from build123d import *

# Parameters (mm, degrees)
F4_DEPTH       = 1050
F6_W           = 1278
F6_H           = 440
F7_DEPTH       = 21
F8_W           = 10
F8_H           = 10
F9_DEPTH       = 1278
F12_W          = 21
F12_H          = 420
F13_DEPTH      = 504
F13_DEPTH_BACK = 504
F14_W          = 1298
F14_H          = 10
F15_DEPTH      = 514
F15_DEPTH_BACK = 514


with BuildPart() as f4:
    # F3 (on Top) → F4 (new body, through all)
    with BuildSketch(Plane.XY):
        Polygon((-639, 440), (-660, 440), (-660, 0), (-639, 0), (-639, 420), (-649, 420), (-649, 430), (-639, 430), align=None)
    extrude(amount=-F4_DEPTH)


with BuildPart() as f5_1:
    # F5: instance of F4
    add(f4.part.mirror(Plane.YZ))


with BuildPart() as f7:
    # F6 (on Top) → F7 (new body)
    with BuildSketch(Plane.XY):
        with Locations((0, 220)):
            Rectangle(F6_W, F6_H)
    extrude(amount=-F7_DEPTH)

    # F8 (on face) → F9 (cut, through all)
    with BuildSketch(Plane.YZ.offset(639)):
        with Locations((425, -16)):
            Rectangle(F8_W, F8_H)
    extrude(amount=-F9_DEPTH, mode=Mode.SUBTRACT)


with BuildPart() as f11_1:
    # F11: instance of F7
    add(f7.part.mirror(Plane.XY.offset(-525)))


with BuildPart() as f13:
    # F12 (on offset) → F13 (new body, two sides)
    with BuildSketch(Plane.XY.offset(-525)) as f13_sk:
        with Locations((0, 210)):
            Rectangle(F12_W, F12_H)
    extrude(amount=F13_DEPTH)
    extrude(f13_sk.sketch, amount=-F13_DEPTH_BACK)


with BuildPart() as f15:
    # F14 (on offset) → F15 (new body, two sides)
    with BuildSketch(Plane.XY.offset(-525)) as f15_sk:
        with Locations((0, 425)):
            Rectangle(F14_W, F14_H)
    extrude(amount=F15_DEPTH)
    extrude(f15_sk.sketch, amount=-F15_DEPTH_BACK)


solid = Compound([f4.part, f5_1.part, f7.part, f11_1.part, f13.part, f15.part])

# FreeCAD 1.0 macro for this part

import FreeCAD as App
import Part
import Sketcher


def add_polygon(sketch, points):
    """Adds a closed chain of lines whose ends are joined by coincident constraints."""
    first, n = sketch.GeometryCount, len(points)
    for a, b in zip(points, points[1:] + points[:1]):
        sketch.addGeometry(Part.LineSegment(App.Vector(*a, 0), App.Vector(*b, 0)), False)
    for i in range(n):
        sketch.addConstraint(Sketcher.Constraint("Coincident", first + i, 2, first + (i + 1) % n, 1))

doc = App.newDocument("Part")
body = doc.addObject("PartDesign::Body", "Body")

# Sketch on XY plane
sketch1 = body.newObject("Sketcher::SketchObject", "Sketch")
sketch1.AttachmentSupport = (doc.getObject("XY_Plane"), [""])
sketch1.MapMode = "FlatFace"
add_polygon(sketch1, [(-639, 440), (-660, 440), (-660, 0), (-639, 0), (-639, 420), (-649, 420), (-649, 430), (-639, 430)])  # lines 0-7
sketch1.addConstraint(Sketcher.Constraint("Horizontal", 0))
sketch1.addConstraint(Sketcher.Constraint("Vertical", 1))
sketch1.addConstraint(Sketcher.Constraint("Horizontal", 2))
sketch1.addConstraint(Sketcher.Constraint("Vertical", 3))
sketch1.addConstraint(Sketcher.Constraint("Horizontal", 4))
sketch1.addConstraint(Sketcher.Constraint("Vertical", 5))
sketch1.addConstraint(Sketcher.Constraint("Horizontal", 6))
sketch1.addConstraint(Sketcher.Constraint("Vertical", 7))
sketch1.addConstraint(Sketcher.Constraint("PointOnObject", 1, 2, -1))
sketch1.addConstraint(Sketcher.Constraint("Vertical", 3, 2, 6, 2))
sketch1.addConstraint(Sketcher.Constraint("Equal", 6, 5))
sketch1.addConstraint(Sketcher.Constraint("Equal", 5, 7))
sketch1.addConstraint(Sketcher.Constraint("DistanceX", 0, 2, 0, 1, 21.0))
sketch1.addConstraint(Sketcher.Constraint("DistanceX", 4, 2, 4, 1, 10.0))
sketch1.addConstraint(Sketcher.Constraint("DistanceY", 1, 2, 1, 1, 440.0))
sketch1.addConstraint(Sketcher.Constraint("DistanceX", 0, 2, -1, 1, 660.0))
pad1 = body.newObject("PartDesign::Pad", "Pad")
pad1.Profile = sketch1
pad1.Length = 1050
pad1.Reversed = True
body2 = doc.addObject("PartDesign::Body", "Body001")
doc.recompute()

mirroring = doc.addObject("Part::Mirroring", "Mirroring")
mirroring.Source = body
mirroring.Base = App.Vector(0, 0, 0)
mirroring.Normal = App.Vector(1, 0, 0)
body2.BaseFeature = mirroring
doc.recompute()
body3 = doc.addObject("PartDesign::Body", "Body002")

# Sketch on XY plane
sketch2 = body3.newObject("Sketcher::SketchObject", "Sketch001")
sketch2.AttachmentSupport = (doc.getObject("XY_Plane002"), [""])
sketch2.MapMode = "FlatFace"
add_polygon(sketch2, [(-639, 440), (-639, 0), (639, 0), (639, 440)])  # lines 0-3
sketch2.addConstraint(Sketcher.Constraint("Vertical", 0))
sketch2.addConstraint(Sketcher.Constraint("Horizontal", 1))
sketch2.addConstraint(Sketcher.Constraint("Vertical", 2))
sketch2.addConstraint(Sketcher.Constraint("Horizontal", 3))
sketch2.addConstraint(Sketcher.Constraint("Symmetric", 0, 2, 1, 2, -1, 1))
sketch2.addConstraint(Sketcher.Constraint("DistanceX", 1, 1, 1, 2, 1278.0))
sketch2.addConstraint(Sketcher.Constraint("DistanceY", 0, 2, 0, 1, 440.0))
pad2 = body3.newObject("PartDesign::Pad", "Pad001")
pad2.Profile = sketch2
pad2.Length = 21
pad2.Reversed = True

# Sketch on YZ plane
sketch3 = body3.newObject("Sketcher::SketchObject", "Sketch002")
sketch3.AttachmentSupport = (doc.getObject("YZ_Plane002"), [""])
sketch3.MapMode = "FlatFace"
sketch3.AttachmentOffset = App.Placement(App.Vector(0, 0, 639), App.Rotation())
add_polygon(sketch3, [(420, -11), (420, -21), (430, -21), (430, -11)])  # lines 0-3
sketch3.addConstraint(Sketcher.Constraint("Vertical", 0))
sketch3.addConstraint(Sketcher.Constraint("Horizontal", 1))
sketch3.addConstraint(Sketcher.Constraint("Vertical", 2))
sketch3.addConstraint(Sketcher.Constraint("Horizontal", 3))
sketch3.addConstraint(Sketcher.Constraint("Equal", 3, 0))
sketch3.addConstraint(Sketcher.Constraint("DistanceX", 1, 1, 1, 2, 10.0))
sketch3.addConstraint(Sketcher.Constraint("DistanceX", -1, 1, 0, 2, 420.0))
sketch3.addConstraint(Sketcher.Constraint("DistanceY", 0, 2, -1, 1, 21.0))
pocket1 = body3.newObject("PartDesign::Pocket", "Pocket")
pocket1.Profile = sketch3
pocket1.Type = "ThroughAll"
body4 = doc.addObject("PartDesign::Body", "Body003")
doc.recompute()

mirroring2 = doc.addObject("Part::Mirroring", "Mirroring001")
mirroring2.Source = body3
mirroring2.Base = App.Vector(0, 0, -525)
mirroring2.Normal = App.Vector(0, 0, 1)
body4.BaseFeature = mirroring2
doc.recompute()
body5 = doc.addObject("PartDesign::Body", "Body004")

# Sketch on XY plane
sketch4 = body5.newObject("Sketcher::SketchObject", "Sketch003")
sketch4.AttachmentSupport = (doc.getObject("XY_Plane004"), [""])
sketch4.MapMode = "FlatFace"
sketch4.AttachmentOffset = App.Placement(App.Vector(0, 0, -525), App.Rotation())
add_polygon(sketch4, [(-10.5, 420), (-10.5, 0), (10.5, 0), (10.5, 420)])  # lines 0-3
sketch4.addConstraint(Sketcher.Constraint("Vertical", 0))
sketch4.addConstraint(Sketcher.Constraint("Horizontal", 1))
sketch4.addConstraint(Sketcher.Constraint("Vertical", 2))
sketch4.addConstraint(Sketcher.Constraint("Horizontal", 3))
sketch4.addConstraint(Sketcher.Constraint("Symmetric", 0, 2, 1, 2, -1, 1))
sketch4.addConstraint(Sketcher.Constraint("DistanceX", 1, 1, 1, 2, 21.0))
sketch4.addConstraint(Sketcher.Constraint("DistanceY", 0, 2, 0, 1, 420.0))
pad3 = body5.newObject("PartDesign::Pad", "Pad002")
pad3.Profile = sketch4
pad3.Type = "TwoLengths"
pad3.Length = 504
pad3.Length2 = 504
body6 = doc.addObject("PartDesign::Body", "Body005")

# Sketch on XY plane
sketch5 = body6.newObject("Sketcher::SketchObject", "Sketch004")
sketch5.AttachmentSupport = (doc.getObject("XY_Plane005"), [""])
sketch5.MapMode = "FlatFace"
sketch5.AttachmentOffset = App.Placement(App.Vector(0, 0, -525), App.Rotation())
add_polygon(sketch5, [(-649, 430), (-649, 420), (649, 420), (649, 430)])  # lines 0-3
sketch5.addConstraint(Sketcher.Constraint("Vertical", 0))
sketch5.addConstraint(Sketcher.Constraint("Horizontal", 1))
sketch5.addConstraint(Sketcher.Constraint("Vertical", 2))
sketch5.addConstraint(Sketcher.Constraint("Horizontal", 3))
sketch5.addConstraint(Sketcher.Constraint("DistanceX", 1, 1, 1, 2, 1298.0))
sketch5.addConstraint(Sketcher.Constraint("DistanceY", 0, 2, 0, 1, 10.0))
sketch5.addConstraint(Sketcher.Constraint("DistanceX", 0, 2, -1, 1, 649.0))
sketch5.addConstraint(Sketcher.Constraint("DistanceY", -1, 1, 0, 2, 420.0))
pad4 = body6.newObject("PartDesign::Pad", "Pad003")
pad4.Profile = sketch5
pad4.Type = "TwoLengths"
pad4.Length = 514
pad4.Length2 = 514
mirroring.Visibility = False
mirroring2.Visibility = False

doc.recompute()
